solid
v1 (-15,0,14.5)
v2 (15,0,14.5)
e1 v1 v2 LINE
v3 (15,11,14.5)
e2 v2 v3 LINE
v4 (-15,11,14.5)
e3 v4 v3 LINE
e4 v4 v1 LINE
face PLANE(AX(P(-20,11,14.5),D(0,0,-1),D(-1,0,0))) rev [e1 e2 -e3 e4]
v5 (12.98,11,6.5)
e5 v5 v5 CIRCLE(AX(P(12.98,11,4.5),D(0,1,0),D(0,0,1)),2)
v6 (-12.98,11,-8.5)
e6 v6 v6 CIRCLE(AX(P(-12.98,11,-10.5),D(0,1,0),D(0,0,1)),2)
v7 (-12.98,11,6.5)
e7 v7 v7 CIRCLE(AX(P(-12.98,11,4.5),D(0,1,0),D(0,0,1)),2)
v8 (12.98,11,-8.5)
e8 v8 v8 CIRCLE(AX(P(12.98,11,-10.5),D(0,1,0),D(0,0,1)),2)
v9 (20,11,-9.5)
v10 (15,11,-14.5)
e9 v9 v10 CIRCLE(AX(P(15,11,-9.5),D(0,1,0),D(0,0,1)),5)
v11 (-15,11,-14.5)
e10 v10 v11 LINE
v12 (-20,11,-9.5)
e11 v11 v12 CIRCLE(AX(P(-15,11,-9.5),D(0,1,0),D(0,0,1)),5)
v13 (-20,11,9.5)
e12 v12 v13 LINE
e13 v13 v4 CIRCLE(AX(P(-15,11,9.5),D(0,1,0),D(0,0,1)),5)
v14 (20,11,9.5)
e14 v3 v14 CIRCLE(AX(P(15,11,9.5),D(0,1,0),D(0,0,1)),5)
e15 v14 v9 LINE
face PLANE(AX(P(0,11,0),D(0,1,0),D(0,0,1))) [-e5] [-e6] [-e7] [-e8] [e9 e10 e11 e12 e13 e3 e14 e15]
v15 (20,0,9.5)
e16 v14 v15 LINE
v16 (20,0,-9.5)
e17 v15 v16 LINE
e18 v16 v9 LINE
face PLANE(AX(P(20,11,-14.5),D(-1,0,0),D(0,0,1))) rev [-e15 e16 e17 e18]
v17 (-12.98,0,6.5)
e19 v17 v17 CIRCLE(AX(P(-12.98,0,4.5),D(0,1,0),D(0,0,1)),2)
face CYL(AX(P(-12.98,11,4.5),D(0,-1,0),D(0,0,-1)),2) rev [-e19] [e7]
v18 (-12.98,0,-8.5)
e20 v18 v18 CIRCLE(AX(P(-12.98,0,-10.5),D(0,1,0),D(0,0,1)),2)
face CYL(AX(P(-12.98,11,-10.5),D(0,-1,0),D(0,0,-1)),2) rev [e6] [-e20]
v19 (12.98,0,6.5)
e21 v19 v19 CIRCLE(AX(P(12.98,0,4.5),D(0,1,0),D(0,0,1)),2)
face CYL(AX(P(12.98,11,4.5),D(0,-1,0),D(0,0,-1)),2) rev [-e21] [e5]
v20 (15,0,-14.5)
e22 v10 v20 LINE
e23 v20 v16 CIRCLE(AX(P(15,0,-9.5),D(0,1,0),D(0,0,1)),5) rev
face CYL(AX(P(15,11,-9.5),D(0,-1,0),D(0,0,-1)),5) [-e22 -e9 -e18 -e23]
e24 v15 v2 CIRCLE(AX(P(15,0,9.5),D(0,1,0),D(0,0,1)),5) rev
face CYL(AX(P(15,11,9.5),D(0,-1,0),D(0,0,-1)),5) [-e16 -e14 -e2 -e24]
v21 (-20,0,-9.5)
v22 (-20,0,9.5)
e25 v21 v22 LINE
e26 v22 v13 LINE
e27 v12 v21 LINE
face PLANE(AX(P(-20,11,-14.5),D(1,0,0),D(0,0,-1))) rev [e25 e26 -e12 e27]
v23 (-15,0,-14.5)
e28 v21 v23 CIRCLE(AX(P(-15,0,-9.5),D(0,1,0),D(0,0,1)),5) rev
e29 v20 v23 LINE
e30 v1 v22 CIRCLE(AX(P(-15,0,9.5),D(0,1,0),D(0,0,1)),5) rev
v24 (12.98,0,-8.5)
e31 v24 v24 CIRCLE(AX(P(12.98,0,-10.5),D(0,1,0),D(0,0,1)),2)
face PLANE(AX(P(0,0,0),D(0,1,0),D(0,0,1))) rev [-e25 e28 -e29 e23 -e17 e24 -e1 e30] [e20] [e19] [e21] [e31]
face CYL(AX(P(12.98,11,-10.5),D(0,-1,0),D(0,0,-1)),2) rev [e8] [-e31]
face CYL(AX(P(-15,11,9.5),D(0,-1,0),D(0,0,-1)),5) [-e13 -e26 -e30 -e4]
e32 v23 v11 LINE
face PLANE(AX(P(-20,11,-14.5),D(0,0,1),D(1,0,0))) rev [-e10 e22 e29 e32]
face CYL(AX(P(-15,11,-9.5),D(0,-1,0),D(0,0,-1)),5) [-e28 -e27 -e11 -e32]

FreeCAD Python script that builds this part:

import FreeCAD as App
import Part
import Sketcher


def edges_at(feature, points):
    """Names of the edges that pass closest to the given points."""
    edges = feature.Shape.Edges
    near = lambda p: min(range(len(edges)), key=lambda i: edges[i].distToShape(Part.Vertex(*p))[0])
    return sorted({f"Edge{near(p) + 1}" for p in points})


def add_polygon(sketch, points):
    """Adds a closed chain of lines whose ends are joined by coincident constraints."""
    first, n = sketch.GeometryCount, len(points)
    for a, b in zip(points, points[1:] + points[:1]):
        sketch.addGeometry(Part.LineSegment(App.Vector(*a, 0), App.Vector(*b, 0)), False)
    for i in range(n):
        sketch.addConstraint(Sketcher.Constraint("Coincident", first + i, 2, first + (i + 1) % n, 1))

doc = App.newDocument("Part")
body = doc.addObject("PartDesign::Body", "Body")

# Sketch on XZ plane
sketch1 = doc.addObject("Sketcher::SketchObject", "Sketch")
body.addObject(sketch1)
sketch1.AttachmentSupport = (doc.XZ_Plane, [""])
sketch1.MapMode = "FlatFace"
add_polygon(sketch1, [(-20, -14.5), (-20, 14.5), (20, 14.5), (20, -14.5)])  # lines 0-3
sketch1.addGeometry(Part.Circle(App.Vector(-13, 4.5, 0), App.Vector(0, 0, 1), 2), False)  # 4
sketch1.addGeometry(Part.Circle(App.Vector(13, 4.5, 0), App.Vector(0, 0, 1), 2), False)  # 5
sketch1.addGeometry(Part.Circle(App.Vector(-13, -10.5, 0), App.Vector(0, 0, 1), 2), False)  # 6
sketch1.addGeometry(Part.Circle(App.Vector(13, -10.5, 0), App.Vector(0, 0, 1), 2), False)  # 7
sketch1.addConstraint(Sketcher.Constraint("Vertical", 0))
sketch1.addConstraint(Sketcher.Constraint("Horizontal", 1))
sketch1.addConstraint(Sketcher.Constraint("Vertical", 2))
sketch1.addConstraint(Sketcher.Constraint("Horizontal", 3))
sketch1.addConstraint(Sketcher.Constraint("Equal", 4, 5))
sketch1.addConstraint(Sketcher.Constraint("Equal", 5, 6))
sketch1.addConstraint(Sketcher.Constraint("Equal", 6, 7))
sketch1.addConstraint(Sketcher.Constraint("Symmetric", 0, 2, 2, 2, -1, 1))
sketch1.addConstraint(Sketcher.Constraint("Symmetric", 4, 3, 5, 3, -2))
sketch1.addConstraint(Sketcher.Constraint("Symmetric", 6, 3, 7, 3, -2))
sketch1.addConstraint(Sketcher.Constraint("Vertical", 4, 3, 6, 3))
sketch1.addConstraint(Sketcher.Constraint("Diameter", 4, 4.0))
sketch1.addConstraint(Sketcher.Constraint("DistanceX", 1, 1, 1, 2, 40.0))
sketch1.addConstraint(Sketcher.Constraint("DistanceY", 0, 1, 0, 2, 29.0))
sketch1.addConstraint(Sketcher.Constraint("DistanceY", 6, 3, 4, 3, 15.0))
sketch1.addConstraint(Sketcher.Constraint("DistanceY", 4, 3, 0, 2, 10.0))
sketch1.addConstraint(Sketcher.Constraint("DistanceX", 4, 3, -1, 1, 12.98))
pad1 = doc.addObject("PartDesign::Pad", "Pad")
body.addObject(pad1)
pad1.Profile = sketch1
pad1.Length = 11
pad1.Reversed = True
doc.recompute()

fillet = doc.addObject("PartDesign::Fillet", "Fillet")
body.addObject(fillet)
fillet.Base = (pad1, edges_at(pad1, [
    (20, 5.5, 14.5),
    (-20, 5.5, 14.5),
    (-20, 5.5, -14.5),
    (20, 5.5, -14.5),
]))
fillet.Radius = 5

doc.recompute()
